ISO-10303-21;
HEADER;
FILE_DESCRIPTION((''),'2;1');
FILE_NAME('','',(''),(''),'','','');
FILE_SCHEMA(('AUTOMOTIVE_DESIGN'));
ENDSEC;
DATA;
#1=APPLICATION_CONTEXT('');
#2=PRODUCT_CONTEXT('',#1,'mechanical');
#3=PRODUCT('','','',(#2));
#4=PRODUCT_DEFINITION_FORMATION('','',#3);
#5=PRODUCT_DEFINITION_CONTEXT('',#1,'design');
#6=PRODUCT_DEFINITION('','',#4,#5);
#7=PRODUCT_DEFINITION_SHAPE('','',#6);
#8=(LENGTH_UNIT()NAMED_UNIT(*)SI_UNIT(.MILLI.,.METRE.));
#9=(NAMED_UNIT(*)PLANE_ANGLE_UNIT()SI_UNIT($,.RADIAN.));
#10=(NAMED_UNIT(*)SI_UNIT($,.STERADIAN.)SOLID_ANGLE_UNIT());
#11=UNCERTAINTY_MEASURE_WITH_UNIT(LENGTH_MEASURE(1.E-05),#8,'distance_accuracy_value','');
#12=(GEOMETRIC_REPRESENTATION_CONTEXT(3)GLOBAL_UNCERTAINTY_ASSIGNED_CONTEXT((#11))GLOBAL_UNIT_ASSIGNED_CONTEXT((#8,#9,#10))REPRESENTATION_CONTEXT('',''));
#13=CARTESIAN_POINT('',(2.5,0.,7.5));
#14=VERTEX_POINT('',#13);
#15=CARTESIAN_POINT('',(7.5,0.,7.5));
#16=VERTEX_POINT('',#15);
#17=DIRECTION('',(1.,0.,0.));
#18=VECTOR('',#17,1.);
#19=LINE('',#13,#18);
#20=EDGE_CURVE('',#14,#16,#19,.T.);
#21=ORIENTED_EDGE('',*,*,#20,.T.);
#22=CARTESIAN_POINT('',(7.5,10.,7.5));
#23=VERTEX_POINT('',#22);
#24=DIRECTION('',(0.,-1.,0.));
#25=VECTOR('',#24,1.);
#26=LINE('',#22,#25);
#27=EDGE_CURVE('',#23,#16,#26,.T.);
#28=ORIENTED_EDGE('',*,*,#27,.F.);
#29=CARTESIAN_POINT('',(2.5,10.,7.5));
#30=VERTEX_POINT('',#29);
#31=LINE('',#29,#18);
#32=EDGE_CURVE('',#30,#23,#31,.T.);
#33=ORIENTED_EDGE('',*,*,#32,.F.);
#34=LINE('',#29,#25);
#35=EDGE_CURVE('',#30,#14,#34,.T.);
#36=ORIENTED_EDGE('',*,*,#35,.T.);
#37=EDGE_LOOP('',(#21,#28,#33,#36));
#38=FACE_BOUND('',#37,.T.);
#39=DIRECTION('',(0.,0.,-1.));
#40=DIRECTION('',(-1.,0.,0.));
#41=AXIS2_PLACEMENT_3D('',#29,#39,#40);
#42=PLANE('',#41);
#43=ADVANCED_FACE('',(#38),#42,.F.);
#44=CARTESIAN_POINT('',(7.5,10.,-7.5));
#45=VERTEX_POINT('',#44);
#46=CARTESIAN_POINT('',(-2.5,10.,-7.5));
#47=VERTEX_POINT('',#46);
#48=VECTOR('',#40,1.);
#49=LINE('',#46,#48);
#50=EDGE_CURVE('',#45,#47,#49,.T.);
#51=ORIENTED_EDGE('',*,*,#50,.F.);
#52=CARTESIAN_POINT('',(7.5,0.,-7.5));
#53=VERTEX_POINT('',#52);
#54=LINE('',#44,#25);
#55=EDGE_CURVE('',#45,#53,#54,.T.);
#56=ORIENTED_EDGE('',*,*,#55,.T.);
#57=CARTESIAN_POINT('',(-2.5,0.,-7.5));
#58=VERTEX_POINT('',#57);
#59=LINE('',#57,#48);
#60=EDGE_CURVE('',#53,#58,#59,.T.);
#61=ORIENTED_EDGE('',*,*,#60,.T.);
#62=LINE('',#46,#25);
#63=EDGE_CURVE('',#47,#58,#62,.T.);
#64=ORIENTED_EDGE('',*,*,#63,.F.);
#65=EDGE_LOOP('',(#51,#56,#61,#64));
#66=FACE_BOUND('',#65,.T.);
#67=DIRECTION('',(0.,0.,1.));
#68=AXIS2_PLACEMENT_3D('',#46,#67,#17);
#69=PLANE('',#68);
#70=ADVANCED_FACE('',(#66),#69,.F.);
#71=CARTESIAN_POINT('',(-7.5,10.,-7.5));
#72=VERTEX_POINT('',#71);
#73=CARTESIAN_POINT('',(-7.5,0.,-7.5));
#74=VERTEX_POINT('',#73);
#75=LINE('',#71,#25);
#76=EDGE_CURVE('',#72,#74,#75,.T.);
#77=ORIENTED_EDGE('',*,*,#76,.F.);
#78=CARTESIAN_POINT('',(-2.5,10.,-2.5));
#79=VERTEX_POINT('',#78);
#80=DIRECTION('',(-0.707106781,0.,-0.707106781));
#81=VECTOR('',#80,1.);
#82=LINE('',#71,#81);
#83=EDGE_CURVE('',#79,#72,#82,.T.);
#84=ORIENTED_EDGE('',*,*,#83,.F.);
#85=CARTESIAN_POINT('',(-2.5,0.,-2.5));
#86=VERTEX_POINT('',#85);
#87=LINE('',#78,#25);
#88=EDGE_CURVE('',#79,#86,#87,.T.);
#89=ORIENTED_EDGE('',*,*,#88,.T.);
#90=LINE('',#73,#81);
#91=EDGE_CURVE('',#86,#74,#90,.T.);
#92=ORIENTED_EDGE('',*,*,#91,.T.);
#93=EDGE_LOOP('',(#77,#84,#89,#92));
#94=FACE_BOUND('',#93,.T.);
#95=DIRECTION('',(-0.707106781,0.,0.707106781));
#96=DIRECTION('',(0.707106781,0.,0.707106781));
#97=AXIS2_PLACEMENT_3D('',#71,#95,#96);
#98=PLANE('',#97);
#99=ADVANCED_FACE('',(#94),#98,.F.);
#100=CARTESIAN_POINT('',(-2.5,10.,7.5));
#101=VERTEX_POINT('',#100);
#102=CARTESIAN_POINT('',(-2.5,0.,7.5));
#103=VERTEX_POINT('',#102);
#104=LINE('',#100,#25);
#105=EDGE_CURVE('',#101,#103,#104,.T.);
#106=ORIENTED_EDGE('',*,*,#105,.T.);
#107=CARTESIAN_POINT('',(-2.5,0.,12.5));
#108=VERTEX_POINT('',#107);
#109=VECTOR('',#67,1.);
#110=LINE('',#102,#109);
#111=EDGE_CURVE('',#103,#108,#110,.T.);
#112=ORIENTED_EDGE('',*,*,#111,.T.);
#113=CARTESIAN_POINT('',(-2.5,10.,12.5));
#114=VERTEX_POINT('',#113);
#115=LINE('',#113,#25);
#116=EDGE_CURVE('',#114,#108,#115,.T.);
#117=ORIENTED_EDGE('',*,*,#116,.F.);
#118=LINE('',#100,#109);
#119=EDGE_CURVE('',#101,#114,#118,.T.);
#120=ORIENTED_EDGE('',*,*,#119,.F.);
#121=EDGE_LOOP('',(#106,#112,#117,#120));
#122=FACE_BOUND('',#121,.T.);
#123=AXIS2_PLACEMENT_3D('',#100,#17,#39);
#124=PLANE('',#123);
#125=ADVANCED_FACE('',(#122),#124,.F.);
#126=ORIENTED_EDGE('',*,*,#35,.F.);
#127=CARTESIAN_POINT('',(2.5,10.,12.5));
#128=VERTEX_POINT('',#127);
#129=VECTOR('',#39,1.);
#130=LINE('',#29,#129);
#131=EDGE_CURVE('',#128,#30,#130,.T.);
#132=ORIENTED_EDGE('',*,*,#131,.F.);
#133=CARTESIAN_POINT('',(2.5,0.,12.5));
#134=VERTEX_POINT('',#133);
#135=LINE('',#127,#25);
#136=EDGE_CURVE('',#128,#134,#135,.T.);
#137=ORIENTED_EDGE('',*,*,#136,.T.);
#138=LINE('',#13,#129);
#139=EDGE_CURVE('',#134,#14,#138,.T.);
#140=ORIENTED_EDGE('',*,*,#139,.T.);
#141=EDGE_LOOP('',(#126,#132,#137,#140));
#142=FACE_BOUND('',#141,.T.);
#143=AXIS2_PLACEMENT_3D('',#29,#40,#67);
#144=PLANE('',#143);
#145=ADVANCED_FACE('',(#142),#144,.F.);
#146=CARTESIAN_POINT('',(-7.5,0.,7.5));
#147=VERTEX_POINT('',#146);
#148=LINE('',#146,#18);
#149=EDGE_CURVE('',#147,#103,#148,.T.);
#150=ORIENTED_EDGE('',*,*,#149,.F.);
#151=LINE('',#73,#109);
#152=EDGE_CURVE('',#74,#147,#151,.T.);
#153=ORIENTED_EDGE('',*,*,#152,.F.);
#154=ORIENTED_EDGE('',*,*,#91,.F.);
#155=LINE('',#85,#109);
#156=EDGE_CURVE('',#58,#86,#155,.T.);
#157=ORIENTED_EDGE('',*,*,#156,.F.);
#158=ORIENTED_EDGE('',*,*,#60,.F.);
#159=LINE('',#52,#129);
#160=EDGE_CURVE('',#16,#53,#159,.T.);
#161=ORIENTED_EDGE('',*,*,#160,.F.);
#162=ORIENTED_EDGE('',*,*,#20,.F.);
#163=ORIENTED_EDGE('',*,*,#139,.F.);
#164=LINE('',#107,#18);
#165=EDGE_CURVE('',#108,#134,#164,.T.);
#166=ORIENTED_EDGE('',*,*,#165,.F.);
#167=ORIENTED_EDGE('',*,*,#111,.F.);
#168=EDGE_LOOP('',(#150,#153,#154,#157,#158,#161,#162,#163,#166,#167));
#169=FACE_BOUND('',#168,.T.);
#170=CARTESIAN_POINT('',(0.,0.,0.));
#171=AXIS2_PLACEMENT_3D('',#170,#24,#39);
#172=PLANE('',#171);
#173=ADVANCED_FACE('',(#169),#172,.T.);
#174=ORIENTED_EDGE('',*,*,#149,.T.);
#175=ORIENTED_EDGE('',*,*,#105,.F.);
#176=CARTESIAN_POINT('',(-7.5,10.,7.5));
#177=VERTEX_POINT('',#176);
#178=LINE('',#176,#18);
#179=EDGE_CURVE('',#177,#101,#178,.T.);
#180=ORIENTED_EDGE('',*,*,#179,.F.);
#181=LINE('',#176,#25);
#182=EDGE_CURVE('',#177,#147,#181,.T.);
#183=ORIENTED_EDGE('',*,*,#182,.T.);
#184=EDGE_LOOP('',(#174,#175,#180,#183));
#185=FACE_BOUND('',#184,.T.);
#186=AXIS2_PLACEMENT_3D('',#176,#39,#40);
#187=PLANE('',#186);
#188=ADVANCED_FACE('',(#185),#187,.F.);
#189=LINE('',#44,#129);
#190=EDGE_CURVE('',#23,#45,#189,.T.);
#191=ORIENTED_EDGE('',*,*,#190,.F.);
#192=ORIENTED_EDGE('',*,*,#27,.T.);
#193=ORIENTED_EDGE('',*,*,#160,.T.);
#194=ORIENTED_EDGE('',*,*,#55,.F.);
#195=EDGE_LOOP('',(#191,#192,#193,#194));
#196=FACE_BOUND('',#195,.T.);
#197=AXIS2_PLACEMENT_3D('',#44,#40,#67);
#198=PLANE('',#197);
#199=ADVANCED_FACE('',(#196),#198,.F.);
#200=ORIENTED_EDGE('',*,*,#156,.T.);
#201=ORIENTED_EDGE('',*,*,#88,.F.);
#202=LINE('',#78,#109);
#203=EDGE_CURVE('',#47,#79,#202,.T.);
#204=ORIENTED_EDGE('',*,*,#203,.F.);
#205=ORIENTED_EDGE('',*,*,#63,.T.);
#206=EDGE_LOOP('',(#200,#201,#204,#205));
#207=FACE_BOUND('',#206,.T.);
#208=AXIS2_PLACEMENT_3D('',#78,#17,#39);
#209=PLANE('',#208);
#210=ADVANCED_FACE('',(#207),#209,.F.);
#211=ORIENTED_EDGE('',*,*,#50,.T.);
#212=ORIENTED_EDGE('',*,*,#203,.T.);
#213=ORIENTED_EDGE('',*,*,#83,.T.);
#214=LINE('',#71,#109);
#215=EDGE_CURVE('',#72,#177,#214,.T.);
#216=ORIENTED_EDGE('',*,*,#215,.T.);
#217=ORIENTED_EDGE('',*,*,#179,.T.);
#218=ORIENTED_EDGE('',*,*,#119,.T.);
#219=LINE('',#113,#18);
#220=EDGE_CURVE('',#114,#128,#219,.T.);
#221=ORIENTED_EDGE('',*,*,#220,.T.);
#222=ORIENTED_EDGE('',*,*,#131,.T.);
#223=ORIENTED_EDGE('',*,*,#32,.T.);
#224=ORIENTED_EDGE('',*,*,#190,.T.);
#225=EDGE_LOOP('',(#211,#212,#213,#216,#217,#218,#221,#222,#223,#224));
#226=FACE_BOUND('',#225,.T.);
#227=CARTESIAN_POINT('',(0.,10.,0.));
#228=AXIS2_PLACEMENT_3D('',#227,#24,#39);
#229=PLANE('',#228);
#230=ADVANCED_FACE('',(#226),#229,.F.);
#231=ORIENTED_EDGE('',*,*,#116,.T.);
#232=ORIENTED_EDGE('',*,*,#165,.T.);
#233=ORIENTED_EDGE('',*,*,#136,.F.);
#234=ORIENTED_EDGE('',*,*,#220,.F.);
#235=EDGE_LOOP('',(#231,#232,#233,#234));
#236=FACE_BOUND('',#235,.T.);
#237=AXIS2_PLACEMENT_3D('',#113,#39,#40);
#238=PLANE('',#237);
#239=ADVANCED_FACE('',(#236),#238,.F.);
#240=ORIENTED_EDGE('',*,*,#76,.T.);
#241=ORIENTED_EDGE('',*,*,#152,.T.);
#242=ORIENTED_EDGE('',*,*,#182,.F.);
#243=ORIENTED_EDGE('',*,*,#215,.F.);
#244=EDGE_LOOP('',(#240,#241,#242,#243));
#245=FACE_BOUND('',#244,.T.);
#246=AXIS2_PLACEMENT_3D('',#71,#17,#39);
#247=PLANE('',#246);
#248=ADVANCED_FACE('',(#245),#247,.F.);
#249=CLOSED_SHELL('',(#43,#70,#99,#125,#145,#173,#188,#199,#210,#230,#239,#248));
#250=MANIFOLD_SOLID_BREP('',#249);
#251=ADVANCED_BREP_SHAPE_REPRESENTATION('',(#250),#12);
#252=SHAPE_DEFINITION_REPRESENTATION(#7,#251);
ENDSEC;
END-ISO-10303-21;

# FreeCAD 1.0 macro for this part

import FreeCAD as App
import Part
import Sketcher
from FreeCAD import Vector
Q = App.Units.Quantity

doc = App.newDocument("Part")
body = doc.addObject("PartDesign::Body", "Body")

# Sketch on XZ plane
sketch1 = doc.addObject("Sketcher::SketchObject", "Sketch")
body.addObject(sketch1)
sketch1.AttachmentSupport = (doc.XZ_Plane, [""])
sketch1.MapMode = "FlatFace"
sketch1.addGeometry(Part.LineSegment(Vector(-2.5, -2.5, 0), Vector(-7.5, -7.5, 0)), False)
sketch1.addGeometry(Part.LineSegment(Vector(-7.5, -7.5, 0), Vector(-7.5, 7.5, 0)), False)
sketch1.addGeometry(Part.LineSegment(Vector(-7.5, 7.5, 0), Vector(-2.5, 7.5, 0)), False)
sketch1.addGeometry(Part.LineSegment(Vector(-2.5, 7.5, 0), Vector(-2.5, 12.5, 0)), False)
sketch1.addGeometry(Part.LineSegment(Vector(-2.5, 12.5, 0), Vector(2.5, 12.5, 0)), False)
sketch1.addGeometry(Part.LineSegment(Vector(2.5, 12.5, 0), Vector(2.5, 7.5, 0)), False)
sketch1.addGeometry(Part.LineSegment(Vector(2.5, 7.5, 0), Vector(7.5, 7.5, 0)), False)
sketch1.addGeometry(Part.LineSegment(Vector(7.5, 7.5, 0), Vector(7.5, -7.5, 0)), False)
sketch1.addGeometry(Part.LineSegment(Vector(7.5, -7.5, 0), Vector(-2.5, -7.5, 0)), False)
sketch1.addGeometry(Part.LineSegment(Vector(-2.5, -7.5, 0), Vector(-2.5, -2.5, 0)), False)
sketch1.addConstraint(Sketcher.Constraint("Coincident", 0, 2, 1, 1))
sketch1.addConstraint(Sketcher.Constraint("Coincident", 1, 2, 2, 1))
sketch1.addConstraint(Sketcher.Constraint("Coincident", 2, 2, 3, 1))
sketch1.addConstraint(Sketcher.Constraint("Coincident", 3, 2, 4, 1))
sketch1.addConstraint(Sketcher.Constraint("Coincident", 4, 2, 5, 1))
sketch1.addConstraint(Sketcher.Constraint("Coincident", 5, 2, 6, 1))
sketch1.addConstraint(Sketcher.Constraint("Coincident", 6, 2, 7, 1))
sketch1.addConstraint(Sketcher.Constraint("Coincident", 7, 2, 8, 1))
sketch1.addConstraint(Sketcher.Constraint("Coincident", 8, 2, 9, 1))
sketch1.addConstraint(Sketcher.Constraint("Coincident", 9, 2, 0, 1))
sketch1.addConstraint(Sketcher.Constraint("Vertical", 1))
sketch1.addConstraint(Sketcher.Constraint("Horizontal", 2))
sketch1.addConstraint(Sketcher.Constraint("Vertical", 3))
sketch1.addConstraint(Sketcher.Constraint("Horizontal", 4))
sketch1.addConstraint(Sketcher.Constraint("Vertical", 5))
sketch1.addConstraint(Sketcher.Constraint("Horizontal", 6))
sketch1.addConstraint(Sketcher.Constraint("Vertical", 7))
sketch1.addConstraint(Sketcher.Constraint("Horizontal", 8))
sketch1.addConstraint(Sketcher.Constraint("Vertical", 9))
sketch1.addConstraint(Sketcher.Constraint("Symmetric", 0, 2, 6, 2, -1, 1))
sketch1.addConstraint(Sketcher.Constraint("Symmetric", 5, 2, 8, 2, -1, 1))
sketch1.addConstraint(Sketcher.Constraint("Symmetric", 2, 2, 5, 2, -2))
sketch1.addConstraint(Sketcher.Constraint("Equal", 2, 4))
sketch1.addConstraint(Sketcher.Constraint("Equal", 6, 3))
sketch1.addConstraint(Sketcher.Constraint("Equal", 5, 9))
sketch1.addConstraint(Sketcher.Constraint("DistanceX", 2, 1, 2, 2, Q("5 mm")))
sketch1.addConstraint(Sketcher.Constraint("DistanceY", 1, 1, 1, 2, Q("15 mm")))
pad1 = doc.addObject("PartDesign::Pad", "Pad")
body.addObject(pad1)
pad1.Profile = sketch1
pad1.Length = 10
pad1.Reversed = True

doc.recompute()
